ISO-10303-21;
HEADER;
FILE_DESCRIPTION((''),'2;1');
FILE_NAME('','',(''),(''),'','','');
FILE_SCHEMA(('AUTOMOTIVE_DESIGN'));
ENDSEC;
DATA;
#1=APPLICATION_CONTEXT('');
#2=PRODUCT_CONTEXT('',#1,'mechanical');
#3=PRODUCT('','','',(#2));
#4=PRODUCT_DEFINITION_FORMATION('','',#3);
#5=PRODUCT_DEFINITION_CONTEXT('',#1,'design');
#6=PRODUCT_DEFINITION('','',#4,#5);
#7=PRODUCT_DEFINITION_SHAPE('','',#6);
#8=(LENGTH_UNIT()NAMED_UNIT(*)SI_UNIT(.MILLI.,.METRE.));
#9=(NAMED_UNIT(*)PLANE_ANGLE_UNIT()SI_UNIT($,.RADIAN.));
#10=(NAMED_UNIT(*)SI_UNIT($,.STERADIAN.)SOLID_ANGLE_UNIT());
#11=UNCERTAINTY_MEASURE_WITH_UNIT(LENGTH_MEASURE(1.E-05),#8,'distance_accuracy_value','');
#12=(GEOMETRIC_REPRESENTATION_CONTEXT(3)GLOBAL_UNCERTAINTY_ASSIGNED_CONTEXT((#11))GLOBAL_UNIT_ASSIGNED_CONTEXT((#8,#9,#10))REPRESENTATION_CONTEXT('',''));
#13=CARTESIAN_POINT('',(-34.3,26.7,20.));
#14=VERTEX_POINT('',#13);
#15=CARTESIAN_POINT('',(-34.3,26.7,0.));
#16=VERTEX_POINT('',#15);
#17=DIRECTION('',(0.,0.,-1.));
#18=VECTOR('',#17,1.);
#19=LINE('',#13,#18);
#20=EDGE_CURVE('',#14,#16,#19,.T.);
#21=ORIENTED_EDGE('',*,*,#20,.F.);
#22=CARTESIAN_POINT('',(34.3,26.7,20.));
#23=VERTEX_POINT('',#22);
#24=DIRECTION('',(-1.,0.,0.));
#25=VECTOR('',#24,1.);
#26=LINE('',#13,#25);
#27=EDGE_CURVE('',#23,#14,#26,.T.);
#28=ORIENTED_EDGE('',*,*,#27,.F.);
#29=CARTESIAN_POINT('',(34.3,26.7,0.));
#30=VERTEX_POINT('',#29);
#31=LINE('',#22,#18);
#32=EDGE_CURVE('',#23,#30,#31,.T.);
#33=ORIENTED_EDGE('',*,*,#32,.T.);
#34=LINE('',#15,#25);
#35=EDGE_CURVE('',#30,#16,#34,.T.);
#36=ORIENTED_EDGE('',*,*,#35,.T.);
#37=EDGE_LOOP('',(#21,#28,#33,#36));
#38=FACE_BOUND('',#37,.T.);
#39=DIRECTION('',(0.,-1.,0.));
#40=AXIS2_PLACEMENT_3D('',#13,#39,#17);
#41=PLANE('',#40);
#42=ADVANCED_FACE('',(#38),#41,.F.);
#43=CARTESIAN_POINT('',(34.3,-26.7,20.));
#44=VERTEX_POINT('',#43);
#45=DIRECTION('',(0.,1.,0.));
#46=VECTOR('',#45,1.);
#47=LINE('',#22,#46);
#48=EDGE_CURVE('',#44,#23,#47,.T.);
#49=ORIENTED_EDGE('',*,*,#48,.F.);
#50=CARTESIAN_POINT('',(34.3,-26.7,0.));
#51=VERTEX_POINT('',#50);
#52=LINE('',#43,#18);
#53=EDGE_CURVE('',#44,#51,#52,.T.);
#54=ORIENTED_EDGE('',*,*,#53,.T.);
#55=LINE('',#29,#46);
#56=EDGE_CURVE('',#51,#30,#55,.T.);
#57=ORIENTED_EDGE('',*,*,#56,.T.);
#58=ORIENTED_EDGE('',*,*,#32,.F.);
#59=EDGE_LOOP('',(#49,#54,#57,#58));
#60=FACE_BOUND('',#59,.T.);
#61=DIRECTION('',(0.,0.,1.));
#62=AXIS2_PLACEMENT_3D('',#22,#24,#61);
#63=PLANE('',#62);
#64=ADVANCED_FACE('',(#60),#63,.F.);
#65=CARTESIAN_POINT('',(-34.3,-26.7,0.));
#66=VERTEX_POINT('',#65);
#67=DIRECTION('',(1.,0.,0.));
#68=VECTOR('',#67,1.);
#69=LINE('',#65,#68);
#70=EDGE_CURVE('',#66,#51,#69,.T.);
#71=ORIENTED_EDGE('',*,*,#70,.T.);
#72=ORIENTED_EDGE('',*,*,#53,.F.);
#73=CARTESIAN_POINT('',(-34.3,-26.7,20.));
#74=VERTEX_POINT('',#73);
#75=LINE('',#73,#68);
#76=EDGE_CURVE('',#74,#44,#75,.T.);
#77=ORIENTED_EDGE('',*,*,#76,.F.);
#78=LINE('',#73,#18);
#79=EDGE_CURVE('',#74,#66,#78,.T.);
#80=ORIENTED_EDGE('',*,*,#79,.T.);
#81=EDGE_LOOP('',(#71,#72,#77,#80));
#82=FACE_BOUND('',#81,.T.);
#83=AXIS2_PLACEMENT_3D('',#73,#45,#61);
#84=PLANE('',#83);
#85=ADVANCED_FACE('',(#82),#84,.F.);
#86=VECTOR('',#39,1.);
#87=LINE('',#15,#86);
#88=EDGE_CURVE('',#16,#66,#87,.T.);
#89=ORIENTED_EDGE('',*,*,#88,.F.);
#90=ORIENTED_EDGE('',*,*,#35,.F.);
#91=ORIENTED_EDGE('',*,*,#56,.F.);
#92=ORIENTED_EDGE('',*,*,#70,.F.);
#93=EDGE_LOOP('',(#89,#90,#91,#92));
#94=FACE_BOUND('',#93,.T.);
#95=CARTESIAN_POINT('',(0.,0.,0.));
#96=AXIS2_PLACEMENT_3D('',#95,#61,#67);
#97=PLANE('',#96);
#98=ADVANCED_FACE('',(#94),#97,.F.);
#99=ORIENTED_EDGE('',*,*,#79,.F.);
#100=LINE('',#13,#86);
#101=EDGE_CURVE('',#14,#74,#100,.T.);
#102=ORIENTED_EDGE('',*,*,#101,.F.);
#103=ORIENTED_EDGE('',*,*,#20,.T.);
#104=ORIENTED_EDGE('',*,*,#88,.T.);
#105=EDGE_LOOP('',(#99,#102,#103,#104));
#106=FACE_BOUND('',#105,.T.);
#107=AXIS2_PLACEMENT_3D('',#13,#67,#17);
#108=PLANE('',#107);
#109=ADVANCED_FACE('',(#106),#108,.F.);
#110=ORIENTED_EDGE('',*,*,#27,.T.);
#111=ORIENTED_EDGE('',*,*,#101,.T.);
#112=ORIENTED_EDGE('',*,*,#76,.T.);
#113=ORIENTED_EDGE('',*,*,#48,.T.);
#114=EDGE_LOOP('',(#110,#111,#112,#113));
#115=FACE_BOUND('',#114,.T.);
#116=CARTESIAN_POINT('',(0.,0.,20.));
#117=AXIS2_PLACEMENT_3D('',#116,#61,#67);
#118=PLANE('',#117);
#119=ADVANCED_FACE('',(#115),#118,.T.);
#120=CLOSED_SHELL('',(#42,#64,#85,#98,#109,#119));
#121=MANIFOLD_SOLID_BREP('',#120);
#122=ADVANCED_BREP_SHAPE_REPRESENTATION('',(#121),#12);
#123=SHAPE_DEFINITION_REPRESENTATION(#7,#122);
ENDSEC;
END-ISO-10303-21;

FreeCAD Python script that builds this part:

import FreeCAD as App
import Part
import Sketcher
from FreeCAD import Vector


def add_polygon(sketch, points):
    """Adds a closed chain of lines whose ends are joined by coincident constraints."""
    first, n = sketch.GeometryCount, len(points)
    for a, b in zip(points, points[1:] + points[:1]):
        sketch.addGeometry(Part.LineSegment(App.Vector(*a, 0), App.Vector(*b, 0)), False)
    for i in range(n):
        sketch.addConstraint(Sketcher.Constraint("Coincident", first + i, 2, first + (i + 1) % n, 1))

doc = App.newDocument("Part")
body = doc.addObject("PartDesign::Body", "Body")

# Sketch on XY plane
sketch1 = doc.addObject("Sketcher::SketchObject", "Sketch")
body.addObject(sketch1)
sketch1.AttachmentSupport = (doc.XY_Plane, [""])
sketch1.MapMode = "FlatFace"
add_polygon(sketch1, [(-34, 27), (-34, -27), (34, -27), (34, 27)])  # lines 0-3
sketch1.addConstraint([
    Sketcher.Constraint("Vertical", 0),
    Sketcher.Constraint("Horizontal", 1),
    Sketcher.Constraint("Vertical", 2),
    Sketcher.Constraint("Horizontal", 3),
    Sketcher.Constraint("Symmetric", 0, 2, 2, 2, -1, 1),
    Sketcher.Constraint("DistanceX", 1, 1, 1, 2, 68.6),
    Sketcher.Constraint("DistanceY", 0, 2, 0, 1, 53.4),
])
pad1 = doc.addObject("PartDesign::Pad", "Pad")
body.addObject(pad1)
pad1.Profile = sketch1
pad1.Length = 20

doc.recompute()
